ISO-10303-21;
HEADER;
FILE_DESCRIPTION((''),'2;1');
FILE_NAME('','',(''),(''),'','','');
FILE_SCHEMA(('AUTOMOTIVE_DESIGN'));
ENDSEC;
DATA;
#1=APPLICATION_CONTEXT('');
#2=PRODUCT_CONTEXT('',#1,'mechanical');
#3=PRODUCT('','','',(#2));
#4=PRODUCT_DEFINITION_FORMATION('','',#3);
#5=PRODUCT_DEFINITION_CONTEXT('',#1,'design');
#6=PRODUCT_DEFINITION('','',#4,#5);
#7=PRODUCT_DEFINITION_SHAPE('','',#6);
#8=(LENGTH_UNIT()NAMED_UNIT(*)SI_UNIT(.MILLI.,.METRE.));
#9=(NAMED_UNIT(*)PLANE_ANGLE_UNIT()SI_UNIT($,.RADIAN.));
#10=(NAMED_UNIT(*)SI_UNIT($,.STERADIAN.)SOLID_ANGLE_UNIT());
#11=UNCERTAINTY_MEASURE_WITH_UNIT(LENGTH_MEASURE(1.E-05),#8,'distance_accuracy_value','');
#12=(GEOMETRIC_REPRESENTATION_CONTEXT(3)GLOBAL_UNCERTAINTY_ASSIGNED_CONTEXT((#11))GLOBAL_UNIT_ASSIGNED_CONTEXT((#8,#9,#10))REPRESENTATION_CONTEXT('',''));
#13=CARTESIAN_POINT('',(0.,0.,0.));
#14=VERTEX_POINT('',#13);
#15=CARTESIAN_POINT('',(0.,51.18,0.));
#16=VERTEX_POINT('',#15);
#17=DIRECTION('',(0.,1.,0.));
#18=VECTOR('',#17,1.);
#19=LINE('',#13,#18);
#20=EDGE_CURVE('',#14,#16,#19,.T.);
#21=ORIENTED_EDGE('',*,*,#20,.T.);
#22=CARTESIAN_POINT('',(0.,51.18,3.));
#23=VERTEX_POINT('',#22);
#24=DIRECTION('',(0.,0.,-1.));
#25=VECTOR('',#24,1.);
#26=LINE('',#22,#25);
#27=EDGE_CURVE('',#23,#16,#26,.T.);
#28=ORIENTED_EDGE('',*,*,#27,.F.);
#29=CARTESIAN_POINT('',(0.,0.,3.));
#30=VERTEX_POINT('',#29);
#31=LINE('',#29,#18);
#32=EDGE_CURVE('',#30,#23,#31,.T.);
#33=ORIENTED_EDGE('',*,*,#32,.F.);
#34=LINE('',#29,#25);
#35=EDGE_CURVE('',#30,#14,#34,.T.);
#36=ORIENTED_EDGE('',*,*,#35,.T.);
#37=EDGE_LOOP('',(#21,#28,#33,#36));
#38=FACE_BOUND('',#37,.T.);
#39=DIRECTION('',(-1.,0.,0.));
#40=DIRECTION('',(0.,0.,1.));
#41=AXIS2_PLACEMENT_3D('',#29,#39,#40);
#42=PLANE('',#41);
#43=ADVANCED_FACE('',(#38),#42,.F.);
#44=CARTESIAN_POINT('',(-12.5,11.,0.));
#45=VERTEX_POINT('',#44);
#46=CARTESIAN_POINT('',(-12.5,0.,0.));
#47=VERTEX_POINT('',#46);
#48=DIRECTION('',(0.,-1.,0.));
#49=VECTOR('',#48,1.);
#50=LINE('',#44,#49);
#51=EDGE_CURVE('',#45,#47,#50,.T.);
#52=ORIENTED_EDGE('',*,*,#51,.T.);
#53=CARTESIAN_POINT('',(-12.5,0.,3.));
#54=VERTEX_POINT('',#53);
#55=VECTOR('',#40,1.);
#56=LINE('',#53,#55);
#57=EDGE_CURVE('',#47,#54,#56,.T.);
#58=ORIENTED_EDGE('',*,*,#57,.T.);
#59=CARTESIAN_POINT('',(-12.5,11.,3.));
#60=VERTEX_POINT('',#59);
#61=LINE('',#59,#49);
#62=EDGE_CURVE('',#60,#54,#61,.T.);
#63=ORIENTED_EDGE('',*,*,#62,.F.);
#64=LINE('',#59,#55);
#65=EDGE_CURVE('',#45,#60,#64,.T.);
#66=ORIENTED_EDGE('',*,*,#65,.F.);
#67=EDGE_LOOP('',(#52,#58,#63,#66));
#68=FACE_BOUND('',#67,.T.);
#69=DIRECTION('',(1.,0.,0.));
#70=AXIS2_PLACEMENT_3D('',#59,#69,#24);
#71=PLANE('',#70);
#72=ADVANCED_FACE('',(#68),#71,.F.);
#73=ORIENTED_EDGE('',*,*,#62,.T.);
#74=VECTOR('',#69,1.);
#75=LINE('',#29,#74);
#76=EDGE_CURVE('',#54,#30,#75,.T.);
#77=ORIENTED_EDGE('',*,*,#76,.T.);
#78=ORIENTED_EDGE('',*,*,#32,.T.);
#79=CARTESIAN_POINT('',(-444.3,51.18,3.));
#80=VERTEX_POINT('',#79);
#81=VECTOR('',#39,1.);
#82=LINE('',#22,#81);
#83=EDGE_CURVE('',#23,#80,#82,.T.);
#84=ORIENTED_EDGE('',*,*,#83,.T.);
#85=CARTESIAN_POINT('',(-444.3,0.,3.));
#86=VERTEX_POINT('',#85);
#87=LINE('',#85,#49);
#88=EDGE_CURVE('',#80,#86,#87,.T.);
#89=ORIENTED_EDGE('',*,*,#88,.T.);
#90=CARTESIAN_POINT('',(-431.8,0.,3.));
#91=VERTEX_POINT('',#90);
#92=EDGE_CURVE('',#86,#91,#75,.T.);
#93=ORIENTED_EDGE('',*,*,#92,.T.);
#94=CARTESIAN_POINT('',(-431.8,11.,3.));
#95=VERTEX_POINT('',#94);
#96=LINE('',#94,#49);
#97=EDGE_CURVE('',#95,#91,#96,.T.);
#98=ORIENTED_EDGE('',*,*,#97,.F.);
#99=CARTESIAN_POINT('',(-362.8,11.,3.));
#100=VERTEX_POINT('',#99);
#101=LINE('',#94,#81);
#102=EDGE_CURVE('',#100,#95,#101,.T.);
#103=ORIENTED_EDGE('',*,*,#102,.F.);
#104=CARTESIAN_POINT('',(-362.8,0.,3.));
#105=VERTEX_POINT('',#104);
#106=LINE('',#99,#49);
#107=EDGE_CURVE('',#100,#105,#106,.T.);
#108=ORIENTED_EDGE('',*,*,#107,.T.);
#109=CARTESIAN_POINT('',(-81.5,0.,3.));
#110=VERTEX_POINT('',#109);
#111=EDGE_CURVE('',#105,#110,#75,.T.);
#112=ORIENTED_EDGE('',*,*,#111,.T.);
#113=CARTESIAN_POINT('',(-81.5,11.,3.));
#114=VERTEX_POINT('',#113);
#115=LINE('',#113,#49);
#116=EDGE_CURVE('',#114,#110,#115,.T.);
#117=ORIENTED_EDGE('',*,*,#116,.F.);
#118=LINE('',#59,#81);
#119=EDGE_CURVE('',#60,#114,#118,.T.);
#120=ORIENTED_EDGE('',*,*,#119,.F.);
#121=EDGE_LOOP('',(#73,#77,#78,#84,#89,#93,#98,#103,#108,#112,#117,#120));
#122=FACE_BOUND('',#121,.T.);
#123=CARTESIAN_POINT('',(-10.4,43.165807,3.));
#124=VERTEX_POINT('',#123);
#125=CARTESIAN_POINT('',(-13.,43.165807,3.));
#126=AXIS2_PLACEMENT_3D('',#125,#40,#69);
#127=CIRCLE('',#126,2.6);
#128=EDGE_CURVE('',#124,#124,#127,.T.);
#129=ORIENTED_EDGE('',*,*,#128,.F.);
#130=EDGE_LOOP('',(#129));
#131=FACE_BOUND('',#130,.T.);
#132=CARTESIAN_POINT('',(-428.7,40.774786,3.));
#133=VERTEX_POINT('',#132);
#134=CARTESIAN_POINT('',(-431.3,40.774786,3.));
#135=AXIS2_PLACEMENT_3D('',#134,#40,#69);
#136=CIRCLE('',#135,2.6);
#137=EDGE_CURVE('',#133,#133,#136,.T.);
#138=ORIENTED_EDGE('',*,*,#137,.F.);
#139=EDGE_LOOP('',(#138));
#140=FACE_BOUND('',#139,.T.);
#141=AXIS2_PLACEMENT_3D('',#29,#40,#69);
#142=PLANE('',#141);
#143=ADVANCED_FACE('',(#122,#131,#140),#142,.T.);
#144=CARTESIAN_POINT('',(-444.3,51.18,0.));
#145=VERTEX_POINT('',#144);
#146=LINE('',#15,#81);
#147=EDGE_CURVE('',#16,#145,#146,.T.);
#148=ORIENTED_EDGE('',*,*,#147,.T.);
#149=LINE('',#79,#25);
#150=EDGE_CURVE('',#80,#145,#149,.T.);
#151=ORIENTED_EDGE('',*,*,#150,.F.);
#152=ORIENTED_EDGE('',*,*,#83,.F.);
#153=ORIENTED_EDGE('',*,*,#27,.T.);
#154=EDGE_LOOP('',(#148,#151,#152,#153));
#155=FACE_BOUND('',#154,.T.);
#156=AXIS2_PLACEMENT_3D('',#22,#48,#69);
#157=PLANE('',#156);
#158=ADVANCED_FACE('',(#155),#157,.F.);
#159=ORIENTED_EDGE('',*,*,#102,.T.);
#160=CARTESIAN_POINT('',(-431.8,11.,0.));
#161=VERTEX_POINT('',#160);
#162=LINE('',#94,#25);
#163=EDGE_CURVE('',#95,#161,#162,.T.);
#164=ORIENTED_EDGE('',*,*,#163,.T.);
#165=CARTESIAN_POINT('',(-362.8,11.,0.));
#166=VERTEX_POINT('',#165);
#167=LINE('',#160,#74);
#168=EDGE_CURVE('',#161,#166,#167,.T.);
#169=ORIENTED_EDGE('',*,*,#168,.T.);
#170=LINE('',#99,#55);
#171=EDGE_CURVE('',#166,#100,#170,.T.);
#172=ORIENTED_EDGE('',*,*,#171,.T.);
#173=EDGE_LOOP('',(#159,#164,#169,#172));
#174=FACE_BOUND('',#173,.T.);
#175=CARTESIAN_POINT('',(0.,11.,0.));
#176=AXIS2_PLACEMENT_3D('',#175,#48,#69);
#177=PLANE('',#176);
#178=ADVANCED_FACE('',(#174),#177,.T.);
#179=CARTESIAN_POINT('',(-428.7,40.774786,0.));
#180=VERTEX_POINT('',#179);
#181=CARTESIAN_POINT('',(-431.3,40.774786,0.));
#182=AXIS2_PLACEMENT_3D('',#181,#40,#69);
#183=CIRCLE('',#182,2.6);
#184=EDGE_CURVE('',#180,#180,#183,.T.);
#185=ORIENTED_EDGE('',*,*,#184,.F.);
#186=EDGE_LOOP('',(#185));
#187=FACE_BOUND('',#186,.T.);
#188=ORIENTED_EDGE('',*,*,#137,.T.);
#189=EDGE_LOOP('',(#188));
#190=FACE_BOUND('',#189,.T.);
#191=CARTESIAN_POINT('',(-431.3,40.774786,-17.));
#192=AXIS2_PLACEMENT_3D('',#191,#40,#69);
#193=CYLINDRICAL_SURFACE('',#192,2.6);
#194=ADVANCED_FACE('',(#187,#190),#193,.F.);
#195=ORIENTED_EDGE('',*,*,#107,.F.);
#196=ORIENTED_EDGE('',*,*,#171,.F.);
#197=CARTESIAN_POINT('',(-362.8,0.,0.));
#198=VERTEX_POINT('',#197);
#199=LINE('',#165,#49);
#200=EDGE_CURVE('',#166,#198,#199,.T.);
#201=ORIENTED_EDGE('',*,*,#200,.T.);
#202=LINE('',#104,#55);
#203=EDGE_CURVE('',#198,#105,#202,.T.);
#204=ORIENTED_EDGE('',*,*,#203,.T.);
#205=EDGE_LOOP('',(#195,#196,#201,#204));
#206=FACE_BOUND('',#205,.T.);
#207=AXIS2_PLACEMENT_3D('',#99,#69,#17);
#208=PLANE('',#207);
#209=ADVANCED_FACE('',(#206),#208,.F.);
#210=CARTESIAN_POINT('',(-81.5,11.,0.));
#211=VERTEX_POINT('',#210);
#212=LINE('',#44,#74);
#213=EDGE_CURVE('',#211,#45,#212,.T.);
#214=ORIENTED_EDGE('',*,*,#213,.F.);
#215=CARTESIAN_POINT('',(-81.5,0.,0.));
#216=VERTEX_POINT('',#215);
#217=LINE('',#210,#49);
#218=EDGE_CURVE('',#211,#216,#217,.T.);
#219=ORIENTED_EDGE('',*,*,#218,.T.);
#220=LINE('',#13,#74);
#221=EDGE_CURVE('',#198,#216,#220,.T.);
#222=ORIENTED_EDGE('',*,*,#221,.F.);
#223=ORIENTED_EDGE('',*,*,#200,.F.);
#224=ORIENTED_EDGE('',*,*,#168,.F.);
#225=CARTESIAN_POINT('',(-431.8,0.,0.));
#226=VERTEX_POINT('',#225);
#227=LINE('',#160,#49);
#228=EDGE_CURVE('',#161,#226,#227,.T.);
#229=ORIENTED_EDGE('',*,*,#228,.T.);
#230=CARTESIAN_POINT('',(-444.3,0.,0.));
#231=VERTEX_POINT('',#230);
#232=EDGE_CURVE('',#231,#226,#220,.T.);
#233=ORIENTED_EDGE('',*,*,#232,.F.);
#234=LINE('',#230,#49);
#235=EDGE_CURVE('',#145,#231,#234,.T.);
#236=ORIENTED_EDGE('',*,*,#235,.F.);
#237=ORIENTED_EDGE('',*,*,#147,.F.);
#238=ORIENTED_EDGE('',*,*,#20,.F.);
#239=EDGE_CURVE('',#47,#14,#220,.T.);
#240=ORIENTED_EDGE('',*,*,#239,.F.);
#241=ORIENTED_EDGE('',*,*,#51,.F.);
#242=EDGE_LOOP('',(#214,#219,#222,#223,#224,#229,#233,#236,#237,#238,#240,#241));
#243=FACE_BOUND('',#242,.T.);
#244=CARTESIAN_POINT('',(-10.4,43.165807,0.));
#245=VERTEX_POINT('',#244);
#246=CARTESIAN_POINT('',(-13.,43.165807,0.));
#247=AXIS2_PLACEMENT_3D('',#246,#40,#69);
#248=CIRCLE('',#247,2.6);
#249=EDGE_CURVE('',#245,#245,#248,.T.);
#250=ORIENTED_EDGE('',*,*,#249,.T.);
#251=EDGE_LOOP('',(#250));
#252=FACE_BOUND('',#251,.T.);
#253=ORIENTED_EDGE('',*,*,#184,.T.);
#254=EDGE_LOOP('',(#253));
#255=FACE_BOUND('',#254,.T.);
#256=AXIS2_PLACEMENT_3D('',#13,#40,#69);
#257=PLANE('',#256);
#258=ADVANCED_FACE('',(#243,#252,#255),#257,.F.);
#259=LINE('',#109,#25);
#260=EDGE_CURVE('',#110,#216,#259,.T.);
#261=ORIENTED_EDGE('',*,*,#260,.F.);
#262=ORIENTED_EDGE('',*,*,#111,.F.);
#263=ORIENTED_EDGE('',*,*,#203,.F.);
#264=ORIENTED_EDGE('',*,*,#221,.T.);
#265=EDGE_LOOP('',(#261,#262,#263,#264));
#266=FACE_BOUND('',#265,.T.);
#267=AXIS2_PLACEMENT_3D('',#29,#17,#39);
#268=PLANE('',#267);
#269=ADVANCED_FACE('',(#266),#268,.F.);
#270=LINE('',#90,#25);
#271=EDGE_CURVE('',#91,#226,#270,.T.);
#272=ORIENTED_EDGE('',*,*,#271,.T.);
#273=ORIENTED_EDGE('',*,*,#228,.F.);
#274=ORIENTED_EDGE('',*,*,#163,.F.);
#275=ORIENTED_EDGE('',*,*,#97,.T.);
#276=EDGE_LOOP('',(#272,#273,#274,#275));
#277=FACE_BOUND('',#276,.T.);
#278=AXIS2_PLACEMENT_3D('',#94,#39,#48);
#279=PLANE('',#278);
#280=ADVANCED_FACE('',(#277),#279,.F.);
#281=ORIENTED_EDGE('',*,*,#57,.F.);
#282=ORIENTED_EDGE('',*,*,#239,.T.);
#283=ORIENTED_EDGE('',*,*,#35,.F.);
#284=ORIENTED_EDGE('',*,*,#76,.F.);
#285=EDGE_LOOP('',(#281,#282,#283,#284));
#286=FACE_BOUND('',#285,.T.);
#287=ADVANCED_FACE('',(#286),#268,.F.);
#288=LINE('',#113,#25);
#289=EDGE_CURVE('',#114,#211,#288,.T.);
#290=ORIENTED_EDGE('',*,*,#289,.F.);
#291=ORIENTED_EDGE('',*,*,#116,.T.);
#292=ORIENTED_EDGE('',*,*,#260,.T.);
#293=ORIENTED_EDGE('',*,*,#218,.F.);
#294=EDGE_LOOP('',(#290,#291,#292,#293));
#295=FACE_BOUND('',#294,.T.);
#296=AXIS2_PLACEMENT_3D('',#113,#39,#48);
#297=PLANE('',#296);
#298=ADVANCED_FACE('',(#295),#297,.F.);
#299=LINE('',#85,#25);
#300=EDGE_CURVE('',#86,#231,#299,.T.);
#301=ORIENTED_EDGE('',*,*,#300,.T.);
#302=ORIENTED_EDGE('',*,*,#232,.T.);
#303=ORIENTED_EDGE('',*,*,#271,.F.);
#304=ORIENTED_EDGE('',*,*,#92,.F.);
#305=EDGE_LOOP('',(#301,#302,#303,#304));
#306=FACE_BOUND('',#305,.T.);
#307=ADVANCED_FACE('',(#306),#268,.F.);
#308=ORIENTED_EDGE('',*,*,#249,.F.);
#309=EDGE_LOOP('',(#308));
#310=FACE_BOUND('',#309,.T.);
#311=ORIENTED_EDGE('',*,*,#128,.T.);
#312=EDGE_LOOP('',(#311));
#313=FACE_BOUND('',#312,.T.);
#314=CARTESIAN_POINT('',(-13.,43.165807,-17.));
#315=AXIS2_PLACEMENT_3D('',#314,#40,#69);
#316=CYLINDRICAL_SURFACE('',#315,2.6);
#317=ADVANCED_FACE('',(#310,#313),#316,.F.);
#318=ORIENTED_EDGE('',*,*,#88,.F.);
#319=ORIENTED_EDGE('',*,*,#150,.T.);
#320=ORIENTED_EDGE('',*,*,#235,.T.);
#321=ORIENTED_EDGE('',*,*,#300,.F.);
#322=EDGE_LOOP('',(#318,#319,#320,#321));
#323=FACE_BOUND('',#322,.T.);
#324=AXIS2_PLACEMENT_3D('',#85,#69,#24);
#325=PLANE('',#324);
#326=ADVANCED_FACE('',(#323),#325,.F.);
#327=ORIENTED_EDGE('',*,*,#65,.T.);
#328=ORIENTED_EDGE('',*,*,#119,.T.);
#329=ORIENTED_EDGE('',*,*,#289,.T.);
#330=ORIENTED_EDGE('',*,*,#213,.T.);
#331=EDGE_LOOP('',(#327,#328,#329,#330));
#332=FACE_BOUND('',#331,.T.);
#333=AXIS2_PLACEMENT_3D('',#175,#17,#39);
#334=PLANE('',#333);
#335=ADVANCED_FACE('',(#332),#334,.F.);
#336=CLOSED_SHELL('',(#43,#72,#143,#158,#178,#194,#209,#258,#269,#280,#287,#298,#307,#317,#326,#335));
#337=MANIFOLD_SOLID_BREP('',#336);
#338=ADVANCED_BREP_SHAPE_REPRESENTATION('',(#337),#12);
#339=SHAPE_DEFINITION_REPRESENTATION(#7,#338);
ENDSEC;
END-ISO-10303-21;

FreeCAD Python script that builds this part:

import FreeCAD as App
import Part
import Sketcher
from FreeCAD import Vector

doc = App.newDocument("Part")
params = doc.addObject("Spreadsheet::Sheet", "Params")
for row, (alias, value) in enumerate([
    ("sketch1_width", "444.3 mm"),
    ("sketch1_height", "51.18 mm"),
    ("pad1_length", "3 mm"),
    ("sketch2_diameter", "5.2 mm"),
    ("pocket1_length", "20 mm"),
    ("sketch3_width", "69 mm"),
    ("sketch3_height", "3 mm"),
    ("pocket2_length", "11 mm"),
], start=1):
    params.set(f"A{row}", alias)
    params.set(f"B{row}", "=" + value)
    params.setAlias(f"B{row}", alias)

body = doc.addObject("PartDesign::Body", "Body")

# Sketch on XY plane
sketch1 = body.newObject("Sketcher::SketchObject", "Sketch")
sketch1.AttachmentSupport = (doc.getObject("XY_Plane"), [""])
sketch1.MapMode = "FlatFace"
sketch1.addGeometry(Part.LineSegment(Vector(-444.3, 51.18, 0), Vector(-444.3, 0, 0)), False)
sketch1.addGeometry(Part.LineSegment(Vector(-444.3, 0, 0), Vector(0, 0, 0)), False)
sketch1.addGeometry(Part.LineSegment(Vector(0, 0, 0), Vector(0, 51.18, 0)), False)
sketch1.addGeometry(Part.LineSegment(Vector(0, 51.18, 0), Vector(-444.3, 51.18, 0)), False)
sketch1.addConstraint(Sketcher.Constraint("Coincident", 0, 2, 1, 1))
sketch1.addConstraint(Sketcher.Constraint("Coincident", 1, 2, 2, 1))
sketch1.addConstraint(Sketcher.Constraint("Coincident", 2, 2, 3, 1))
sketch1.addConstraint(Sketcher.Constraint("Coincident", 3, 2, 0, 1))
sketch1.addConstraint(Sketcher.Constraint("Vertical", 0))
sketch1.addConstraint(Sketcher.Constraint("Horizontal", 1))
sketch1.addConstraint(Sketcher.Constraint("Vertical", 2))
sketch1.addConstraint(Sketcher.Constraint("Horizontal", 3))
sketch1.addConstraint(Sketcher.Constraint("Coincident", 1, 2, -1, 1))
sketch1.addConstraint(Sketcher.Constraint("DistanceX", 1, 1, 1, 2, 444.3))
sketch1.addConstraint(Sketcher.Constraint("DistanceY", 0, 2, 0, 1, 51.18))
sketch1.setExpression("Constraints[9]", "Params.sketch1_width")
sketch1.setExpression("Constraints[10]", "Params.sketch1_height")
pad1 = body.newObject("PartDesign::Pad", "Pad")
pad1.Profile = sketch1
pad1.setExpression("Length", "Params.pad1_length")

# Sketch on XY plane
sketch2 = body.newObject("Sketcher::SketchObject", "Sketch001")
sketch2.AttachmentSupport = (doc.getObject("XY_Plane"), [""])
sketch2.MapMode = "FlatFace"
sketch2.AttachmentOffset = App.Placement(Vector(0, 0, 3), App.Rotation())
sketch2.addGeometry(Part.Circle(Vector(-13, 43.165807, 0), Vector(0, 0, 1), 2.6), False)
sketch2.addGeometry(Part.Circle(Vector(-431.3, 40.774786, 0), Vector(0, 0, 1), 2.6), False)
sketch2.addConstraint(Sketcher.Constraint("Equal", 0, 1))
sketch2.addConstraint(Sketcher.Constraint("Diameter", 0, 5.2))
sketch2.addConstraint(Sketcher.Constraint("DistanceX", 0, 3, -1, 1, 13.0))
sketch2.addConstraint(Sketcher.Constraint("DistanceX", 1, 3, -1, 1, 431.3))
sketch2.addConstraint(Sketcher.Constraint("DistanceY", 1, 3, 0, 3, 2.391021))
sketch2.addConstraint(Sketcher.Constraint("DistanceY", -1, 1, 0, 3, 43.165807))
sketch2.setExpression("Constraints[1]", "Params.sketch2_diameter")
pocket1 = body.newObject("PartDesign::Pocket", "Pocket")
pocket1.Profile = sketch2
pocket1.setExpression("Length", "Params.pocket1_length")

# Sketch on XZ plane
sketch3 = body.newObject("Sketcher::SketchObject", "Sketch002")
sketch3.AttachmentSupport = (doc.getObject("XZ_Plane"), [""])
sketch3.MapMode = "FlatFace"
sketch3.addGeometry(Part.LineSegment(Vector(-431.8, 3, 0), Vector(-431.8, 0, 0)), False)
sketch3.addGeometry(Part.LineSegment(Vector(-431.8, 0, 0), Vector(-362.8, 0, 0)), False)
sketch3.addGeometry(Part.LineSegment(Vector(-362.8, 0, 0), Vector(-362.8, 3, 0)), False)
sketch3.addGeometry(Part.LineSegment(Vector(-362.8, 3, 0), Vector(-431.8, 3, 0)), False)
sketch3.addGeometry(Part.LineSegment(Vector(-81.5, 3, 0), Vector(-81.5, 0, 0)), False)
sketch3.addGeometry(Part.LineSegment(Vector(-81.5, 0, 0), Vector(-12.5, 0, 0)), False)
sketch3.addGeometry(Part.LineSegment(Vector(-12.5, 0, 0), Vector(-12.5, 3, 0)), False)
sketch3.addGeometry(Part.LineSegment(Vector(-12.5, 3, 0), Vector(-81.5, 3, 0)), False)
sketch3.addConstraint(Sketcher.Constraint("Coincident", 0, 2, 1, 1))
sketch3.addConstraint(Sketcher.Constraint("Coincident", 1, 2, 2, 1))
sketch3.addConstraint(Sketcher.Constraint("Coincident", 2, 2, 3, 1))
sketch3.addConstraint(Sketcher.Constraint("Coincident", 3, 2, 0, 1))
sketch3.addConstraint(Sketcher.Constraint("Coincident", 4, 2, 5, 1))
sketch3.addConstraint(Sketcher.Constraint("Coincident", 5, 2, 6, 1))
sketch3.addConstraint(Sketcher.Constraint("Coincident", 6, 2, 7, 1))
sketch3.addConstraint(Sketcher.Constraint("Coincident", 7, 2, 4, 1))
sketch3.addConstraint(Sketcher.Constraint("Vertical", 0))
sketch3.addConstraint(Sketcher.Constraint("Horizontal", 1))
sketch3.addConstraint(Sketcher.Constraint("Vertical", 2))
sketch3.addConstraint(Sketcher.Constraint("Horizontal", 3))
sketch3.addConstraint(Sketcher.Constraint("Vertical", 4))
sketch3.addConstraint(Sketcher.Constraint("Horizontal", 5))
sketch3.addConstraint(Sketcher.Constraint("Vertical", 6))
sketch3.addConstraint(Sketcher.Constraint("Horizontal", 7))
sketch3.addConstraint(Sketcher.Constraint("PointOnObject", 0, 2, -1))
sketch3.addConstraint(Sketcher.Constraint("PointOnObject", 4, 2, -1))
sketch3.addConstraint(Sketcher.Constraint("Horizontal", 3, 2, 6, 2))
sketch3.addConstraint(Sketcher.Constraint("Equal", 3, 5))
sketch3.addConstraint(Sketcher.Constraint("DistanceX", 1, 1, 1, 2, 69.0))
sketch3.addConstraint(Sketcher.Constraint("DistanceY", 0, 2, 0, 1, 3.0))
sketch3.addConstraint(Sketcher.Constraint("DistanceX", 0, 2, -1, 1, 431.8))
sketch3.addConstraint(Sketcher.Constraint("DistanceX", 4, 2, -1, 1, 81.5))
sketch3.setExpression("Constraints[20]", "Params.sketch3_width")
sketch3.setExpression("Constraints[21]", "Params.sketch3_height")
pocket2 = body.newObject("PartDesign::Pocket", "Pocket001")
pocket2.Profile = sketch3
pocket2.setExpression("Length", "Params.pocket2_length")

doc.recompute()
